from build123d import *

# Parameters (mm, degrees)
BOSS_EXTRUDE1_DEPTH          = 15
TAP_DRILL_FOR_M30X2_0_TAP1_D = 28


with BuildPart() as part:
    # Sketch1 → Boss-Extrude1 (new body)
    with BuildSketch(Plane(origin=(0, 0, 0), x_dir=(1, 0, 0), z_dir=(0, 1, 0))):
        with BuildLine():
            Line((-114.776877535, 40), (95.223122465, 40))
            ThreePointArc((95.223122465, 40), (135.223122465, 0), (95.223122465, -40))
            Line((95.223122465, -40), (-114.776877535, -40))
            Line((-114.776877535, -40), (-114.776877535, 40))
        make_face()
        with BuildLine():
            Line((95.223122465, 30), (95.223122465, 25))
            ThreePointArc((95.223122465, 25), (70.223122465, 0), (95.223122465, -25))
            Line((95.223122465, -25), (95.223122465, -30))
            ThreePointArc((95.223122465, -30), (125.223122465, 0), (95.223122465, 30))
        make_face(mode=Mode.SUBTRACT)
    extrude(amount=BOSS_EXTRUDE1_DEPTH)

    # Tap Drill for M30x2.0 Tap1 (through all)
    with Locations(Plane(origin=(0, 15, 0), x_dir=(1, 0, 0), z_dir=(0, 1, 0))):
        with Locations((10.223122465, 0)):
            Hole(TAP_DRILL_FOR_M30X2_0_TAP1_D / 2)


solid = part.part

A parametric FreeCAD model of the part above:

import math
import FreeCAD as App
import Part
import Sketcher
Q = App.Units.Quantity

doc = App.newDocument("Part")
body = doc.addObject("PartDesign::Body", "Body")

sketch1 = doc.addObject("Sketcher::SketchObject", "Sketch")
body.addObject(sketch1)
sketch1.AttachmentSupport = (doc.XZ_Plane, [""])
sketch1.MapMode = "FlatFace"
sketch1.addGeometry([
    Part.LineSegment(App.Vector(95.223122, -40, 0), App.Vector(-114.776878, -40, 0)),
    Part.LineSegment(App.Vector(-114.776878, -40, 0), App.Vector(-114.776878, 40, 0)),
    Part.LineSegment(App.Vector(-114.776878, 40, 0), App.Vector(95.223122, 40, 0)),
    Part.ArcOfCircle(Part.Circle(App.Vector(95.223122, 0, 0), App.Vector(0, 0, 1), 40), math.radians(-90), math.radians(90)),
    Part.ArcOfCircle(Part.Circle(App.Vector(95.223122, 0, 0), App.Vector(0, 0, 1), 30), math.radians(-90), math.radians(90)),
    Part.LineSegment(App.Vector(95.223122, 30, 0), App.Vector(95.223122, 25, 0)),
    Part.ArcOfCircle(Part.Circle(App.Vector(95.223122, 0, 0), App.Vector(0, 0, 1), 25), math.radians(90), math.radians(270)),
    Part.LineSegment(App.Vector(95.223122, -25, 0), App.Vector(95.223122, -30, 0)),
], False)
sketch1.addConstraint([
    Sketcher.Constraint("Coincident", 0, 2, 1, 1),
    Sketcher.Constraint("Coincident", 1, 2, 2, 1),
    Sketcher.Constraint("Tangent", 2, 2, 3, 2),
    Sketcher.Constraint("Tangent", 3, 1, 0, 1),
    Sketcher.Constraint("Coincident", 4, 2, 5, 1),
    Sketcher.Constraint("Coincident", 5, 2, 6, 1),
    Sketcher.Constraint("Coincident", 6, 2, 7, 1),
    Sketcher.Constraint("Coincident", 7, 2, 4, 1),
    Sketcher.Constraint("Horizontal", 0),
    Sketcher.Constraint("Vertical", 1),
    Sketcher.Constraint("Horizontal", 2),
    Sketcher.Constraint("Vertical", 5),
    Sketcher.Constraint("Vertical", 7),
    Sketcher.Constraint("Coincident", 4, 3, 3, 3),
    Sketcher.Constraint("Coincident", 6, 3, 3, 3),
    Sketcher.Constraint("Symmetric", 5, 2, 6, 2, -1),
    Sketcher.Constraint("Vertical", 3, 1, 4, 2),
    Sketcher.Constraint("Radius", 3, Q("40 mm")),
    Sketcher.Constraint("Radius", 4, Q("30 mm")),
    Sketcher.Constraint("Radius", 6, Q("25 mm")),
    Sketcher.Constraint("DistanceX", 0, 2, 0, 1, Q("210 mm")),
    Sketcher.Constraint("DistanceX", -1, 1, 3, 3, Q("95.223122 mm")),
])
pad1 = doc.addObject("PartDesign::Pad", "Pad")
body.addObject(pad1)
pad1.Profile = sketch1
pad1.Length = 15
pad1.Reversed = True

sketch2 = doc.addObject("Sketcher::SketchObject", "Sketch001")
body.addObject(sketch2)
sketch2.AttachmentSupport = (doc.XZ_Plane, [""])
sketch2.MapMode = "FlatFace"
sketch2.AttachmentOffset = App.Placement(App.Vector(0, 0, -15), App.Rotation())
sketch2.addGeometry(Part.Circle(App.Vector(10.223122, 0, 0), App.Vector(0, 0, 1), 14), False)
sketch2.addConstraint([
    Sketcher.Constraint("PointOnObject", 0, 3, -1),
    Sketcher.Constraint("Diameter", 0, Q("28 mm")),
    Sketcher.Constraint("DistanceX", -1, 1, 0, 3, Q("10.223122 mm")),
])
doc.recompute()
hole = doc.addObject("PartDesign::Hole", "Hole")
body.addObject(hole)
hole.Profile = sketch2
hole.ThreadType = "None"
hole.Diameter = 28
hole.DepthType = "ThroughAll"
hole.Reversed = True

doc.recompute()
